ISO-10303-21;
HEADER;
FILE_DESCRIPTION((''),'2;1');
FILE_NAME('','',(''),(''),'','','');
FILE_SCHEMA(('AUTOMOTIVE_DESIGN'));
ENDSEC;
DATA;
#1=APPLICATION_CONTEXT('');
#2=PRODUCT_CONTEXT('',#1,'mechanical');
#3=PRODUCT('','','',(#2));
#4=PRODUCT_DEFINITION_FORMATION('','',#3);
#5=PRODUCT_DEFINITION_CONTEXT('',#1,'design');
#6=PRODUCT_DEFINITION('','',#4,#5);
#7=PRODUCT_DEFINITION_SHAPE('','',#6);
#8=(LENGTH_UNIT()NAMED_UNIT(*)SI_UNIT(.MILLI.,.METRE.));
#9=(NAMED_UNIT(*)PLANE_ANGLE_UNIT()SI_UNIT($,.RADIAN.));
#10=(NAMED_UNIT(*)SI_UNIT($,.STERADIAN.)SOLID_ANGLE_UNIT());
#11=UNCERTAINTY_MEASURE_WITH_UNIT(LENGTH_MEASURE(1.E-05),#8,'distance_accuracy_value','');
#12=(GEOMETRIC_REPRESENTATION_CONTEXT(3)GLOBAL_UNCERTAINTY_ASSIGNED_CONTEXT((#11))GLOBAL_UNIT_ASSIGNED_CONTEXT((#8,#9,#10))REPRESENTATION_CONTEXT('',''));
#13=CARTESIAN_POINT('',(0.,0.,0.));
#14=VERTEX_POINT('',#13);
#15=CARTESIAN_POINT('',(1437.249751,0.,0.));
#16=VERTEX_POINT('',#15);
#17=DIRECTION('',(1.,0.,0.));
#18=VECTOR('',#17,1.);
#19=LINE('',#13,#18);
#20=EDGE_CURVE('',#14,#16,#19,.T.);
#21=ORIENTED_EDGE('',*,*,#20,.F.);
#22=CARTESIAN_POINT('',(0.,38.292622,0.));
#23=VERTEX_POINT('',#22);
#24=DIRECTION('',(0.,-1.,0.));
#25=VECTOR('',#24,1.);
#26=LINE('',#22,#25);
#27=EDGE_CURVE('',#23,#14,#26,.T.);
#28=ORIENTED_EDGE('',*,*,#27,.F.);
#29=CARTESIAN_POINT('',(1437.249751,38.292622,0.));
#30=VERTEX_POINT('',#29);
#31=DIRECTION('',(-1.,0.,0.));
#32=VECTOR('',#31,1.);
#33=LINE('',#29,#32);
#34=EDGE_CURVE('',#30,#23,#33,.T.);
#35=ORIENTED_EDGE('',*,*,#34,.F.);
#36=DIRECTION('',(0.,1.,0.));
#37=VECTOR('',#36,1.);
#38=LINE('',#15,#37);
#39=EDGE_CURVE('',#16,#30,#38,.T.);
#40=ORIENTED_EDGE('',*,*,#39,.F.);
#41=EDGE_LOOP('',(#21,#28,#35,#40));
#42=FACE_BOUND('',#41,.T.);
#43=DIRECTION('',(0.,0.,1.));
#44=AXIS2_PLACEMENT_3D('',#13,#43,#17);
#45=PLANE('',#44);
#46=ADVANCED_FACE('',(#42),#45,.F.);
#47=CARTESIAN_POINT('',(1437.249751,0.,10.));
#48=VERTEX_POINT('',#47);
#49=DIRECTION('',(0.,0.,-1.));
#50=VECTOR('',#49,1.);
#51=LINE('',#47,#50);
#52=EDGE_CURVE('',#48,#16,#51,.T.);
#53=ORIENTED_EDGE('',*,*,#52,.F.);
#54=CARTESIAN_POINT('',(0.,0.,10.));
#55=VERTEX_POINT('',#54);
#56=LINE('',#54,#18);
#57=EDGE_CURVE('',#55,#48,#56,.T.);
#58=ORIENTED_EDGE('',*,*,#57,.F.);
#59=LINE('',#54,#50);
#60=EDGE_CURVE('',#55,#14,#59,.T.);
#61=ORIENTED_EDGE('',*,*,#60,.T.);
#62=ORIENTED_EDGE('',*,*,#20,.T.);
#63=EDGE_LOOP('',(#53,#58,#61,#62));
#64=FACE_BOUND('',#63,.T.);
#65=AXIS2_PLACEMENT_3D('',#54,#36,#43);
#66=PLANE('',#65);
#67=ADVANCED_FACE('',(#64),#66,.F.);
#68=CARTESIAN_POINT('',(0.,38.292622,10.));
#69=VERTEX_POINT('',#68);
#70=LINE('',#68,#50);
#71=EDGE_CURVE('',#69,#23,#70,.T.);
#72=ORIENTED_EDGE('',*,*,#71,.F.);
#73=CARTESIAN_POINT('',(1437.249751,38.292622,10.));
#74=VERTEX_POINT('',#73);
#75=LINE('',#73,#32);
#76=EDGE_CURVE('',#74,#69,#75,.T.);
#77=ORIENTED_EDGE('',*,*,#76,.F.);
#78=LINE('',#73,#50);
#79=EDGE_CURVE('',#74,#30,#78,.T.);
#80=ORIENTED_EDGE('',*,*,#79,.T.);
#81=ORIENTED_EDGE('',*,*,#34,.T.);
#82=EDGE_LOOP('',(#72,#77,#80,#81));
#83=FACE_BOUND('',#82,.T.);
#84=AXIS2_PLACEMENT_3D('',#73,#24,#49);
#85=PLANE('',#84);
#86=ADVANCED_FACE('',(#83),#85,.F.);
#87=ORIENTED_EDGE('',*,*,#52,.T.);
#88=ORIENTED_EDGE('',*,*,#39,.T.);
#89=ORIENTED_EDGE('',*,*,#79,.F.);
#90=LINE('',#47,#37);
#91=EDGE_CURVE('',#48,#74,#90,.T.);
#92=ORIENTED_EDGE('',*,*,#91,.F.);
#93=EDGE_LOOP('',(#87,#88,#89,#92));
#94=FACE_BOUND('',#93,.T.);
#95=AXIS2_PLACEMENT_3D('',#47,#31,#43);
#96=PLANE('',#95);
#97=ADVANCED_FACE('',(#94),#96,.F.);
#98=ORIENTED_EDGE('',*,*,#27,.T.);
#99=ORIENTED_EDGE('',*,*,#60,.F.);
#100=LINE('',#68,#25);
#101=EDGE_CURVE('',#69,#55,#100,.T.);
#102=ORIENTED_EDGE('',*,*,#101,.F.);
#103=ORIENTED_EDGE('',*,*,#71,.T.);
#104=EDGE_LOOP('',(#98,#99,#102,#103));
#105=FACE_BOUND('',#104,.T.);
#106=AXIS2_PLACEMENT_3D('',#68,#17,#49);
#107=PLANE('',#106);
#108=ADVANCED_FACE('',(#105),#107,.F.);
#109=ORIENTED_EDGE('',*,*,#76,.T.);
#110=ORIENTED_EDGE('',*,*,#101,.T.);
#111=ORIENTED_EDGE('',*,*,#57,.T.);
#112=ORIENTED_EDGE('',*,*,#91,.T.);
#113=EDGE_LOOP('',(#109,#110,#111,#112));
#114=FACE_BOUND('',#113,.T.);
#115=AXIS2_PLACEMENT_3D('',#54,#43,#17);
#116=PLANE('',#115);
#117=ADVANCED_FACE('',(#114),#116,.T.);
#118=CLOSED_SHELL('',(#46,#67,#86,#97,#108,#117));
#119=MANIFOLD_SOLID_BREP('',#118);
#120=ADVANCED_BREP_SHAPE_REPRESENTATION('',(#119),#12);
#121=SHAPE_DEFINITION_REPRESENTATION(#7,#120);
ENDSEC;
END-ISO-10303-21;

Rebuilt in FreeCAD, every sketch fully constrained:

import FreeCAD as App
import Part
import Sketcher
Q = App.Units.Quantity


def add_polygon(sketch, points):
    """Adds a closed chain of lines whose ends are joined by coincident constraints."""
    first, n = sketch.GeometryCount, len(points)
    for a, b in zip(points, points[1:] + points[:1]):
        sketch.addGeometry(Part.LineSegment(App.Vector(*a, 0), App.Vector(*b, 0)), False)
    for i in range(n):
        sketch.addConstraint(Sketcher.Constraint("Coincident", first + i, 2, first + (i + 1) % n, 1))

doc = App.newDocument("Part")
body = doc.addObject("PartDesign::Body", "Body")

sketch1 = doc.addObject("Sketcher::SketchObject", "Sketch")
body.addObject(sketch1)
sketch1.AttachmentSupport = (doc.XY_Plane, [""])
sketch1.MapMode = "FlatFace"
add_polygon(sketch1, [(0, 38), (0, 0), (1437, 0), (1437, 38)])
sketch1.addConstraint(Sketcher.Constraint("Vertical", 0))
sketch1.addConstraint(Sketcher.Constraint("Horizontal", 1))
sketch1.addConstraint(Sketcher.Constraint("Vertical", 2))
sketch1.addConstraint(Sketcher.Constraint("Horizontal", 3))
sketch1.addConstraint(Sketcher.Constraint("Coincident", 0, 2, -1, 1))
sketch1.addConstraint(Sketcher.Constraint("DistanceX", 1, 1, 1, 2, Q("1437.249751 mm")))
sketch1.addConstraint(Sketcher.Constraint("DistanceY", 0, 2, 0, 1, Q("38.292622 mm")))
pad1 = doc.addObject("PartDesign::Pad", "Pad")
body.addObject(pad1)
pad1.Profile = sketch1
pad1.Length = 10

doc.recompute()
